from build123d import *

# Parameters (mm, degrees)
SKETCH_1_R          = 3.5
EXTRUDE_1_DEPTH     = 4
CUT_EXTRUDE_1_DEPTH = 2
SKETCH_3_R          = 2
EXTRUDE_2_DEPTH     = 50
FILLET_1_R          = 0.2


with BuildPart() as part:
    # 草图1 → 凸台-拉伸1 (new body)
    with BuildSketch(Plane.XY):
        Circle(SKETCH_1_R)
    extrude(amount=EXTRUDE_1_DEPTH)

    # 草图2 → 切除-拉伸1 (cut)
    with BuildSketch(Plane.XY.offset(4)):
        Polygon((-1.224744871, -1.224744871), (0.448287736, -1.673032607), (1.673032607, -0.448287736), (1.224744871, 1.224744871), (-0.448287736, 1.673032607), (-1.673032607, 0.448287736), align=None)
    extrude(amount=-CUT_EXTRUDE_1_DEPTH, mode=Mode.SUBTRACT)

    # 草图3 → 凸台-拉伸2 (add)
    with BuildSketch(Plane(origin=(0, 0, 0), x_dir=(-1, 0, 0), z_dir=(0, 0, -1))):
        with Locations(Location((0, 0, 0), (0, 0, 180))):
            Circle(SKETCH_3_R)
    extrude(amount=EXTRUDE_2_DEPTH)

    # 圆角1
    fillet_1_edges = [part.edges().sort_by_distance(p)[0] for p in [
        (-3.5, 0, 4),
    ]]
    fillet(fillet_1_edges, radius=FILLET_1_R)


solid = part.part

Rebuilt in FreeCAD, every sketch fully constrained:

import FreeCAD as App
import Part
import Sketcher
from FreeCAD import Vector
Q = App.Units.Quantity


def edges_at(feature, points):
    """Names of the edges that pass closest to the given points."""
    edges = feature.Shape.Edges
    near = lambda p: min(range(len(edges)), key=lambda i: edges[i].distToShape(Part.Vertex(*p))[0])
    return sorted({f"Edge{near(p) + 1}" for p in points})

doc = App.newDocument("Part")
body = doc.addObject("PartDesign::Body", "Body")

# Sketch on XY plane
sketch1 = doc.addObject("Sketcher::SketchObject", "Sketch")
body.addObject(sketch1)
sketch1.AttachmentSupport = (doc.XY_Plane, [""])
sketch1.MapMode = "FlatFace"
sketch1.addGeometry(Part.Circle(Vector(0, 0, 0), Vector(0, 0, 1), 3.5), False)
sketch1.addConstraint([
    Sketcher.Constraint("Coincident", 0, 3, -1, 1),
    Sketcher.Constraint("Diameter", 0, Q("7 mm")),
])
pad1 = doc.addObject("PartDesign::Pad", "Pad")
body.addObject(pad1)
pad1.Profile = sketch1
pad1.Length = 4

# Sketch on XY plane
sketch2 = doc.addObject("Sketcher::SketchObject", "Sketch001")
body.addObject(sketch2)
sketch2.AttachmentSupport = (doc.XY_Plane, [""])
sketch2.MapMode = "FlatFace"
sketch2.AttachmentOffset = App.Placement(Vector(0, 0, 4), App.Rotation())
sketch2.addGeometry([
    Part.LineSegment(Vector(-1.2, -1.2, 0), Vector(0.4, -1.7, 0)),  # 0
    Part.LineSegment(Vector(0.4, -1.7, 0), Vector(1.7, -0.4, 0)),  # 1
    Part.LineSegment(Vector(1.7, -0.4, 0), Vector(1.2, 1.2, 0)),  # 2
    Part.LineSegment(Vector(1.2, 1.2, 0), Vector(-0.4, 1.7, 0)),  # 3
    Part.LineSegment(Vector(-0.4, 1.7, 0), Vector(-1.7, 0.4, 0)),  # 4
    Part.LineSegment(Vector(-1.7, 0.4, 0), Vector(-1.2, -1.2, 0)),  # 5
], False)
sketch2.addConstraint([
    Sketcher.Constraint("Coincident", 0, 2, 1, 1),
    Sketcher.Constraint("Coincident", 1, 2, 2, 1),
    Sketcher.Constraint("Coincident", 2, 2, 3, 1),
    Sketcher.Constraint("Coincident", 3, 2, 4, 1),
    Sketcher.Constraint("Coincident", 4, 2, 5, 1),
    Sketcher.Constraint("Coincident", 5, 2, 0, 1),
    Sketcher.Constraint("Symmetric", 0, 2, 3, 2, -1, 1),
    Sketcher.Constraint("Symmetric", 1, 2, 4, 2, -1, 1),
    Sketcher.Constraint("Symmetric", 2, 2, 5, 2, -1, 1),
    Sketcher.Constraint("Equal", 0, 1),
    Sketcher.Constraint("Equal", 1, 2),
    Sketcher.Constraint("Angle", 0, Q("-15 deg")),
    Sketcher.Constraint("Angle", 1, Q("45 deg")),
    Sketcher.Constraint("Angle", 2, Q("105 deg")),
    Sketcher.Constraint("Distance", 0, Q("1.732051 mm")),
])
pocket1 = doc.addObject("PartDesign::Pocket", "Pocket")
body.addObject(pocket1)
pocket1.Profile = sketch2
pocket1.Length = 2

# Sketch on XY plane
sketch3 = doc.addObject("Sketcher::SketchObject", "Sketch002")
body.addObject(sketch3)
sketch3.AttachmentSupport = (doc.XY_Plane, [""])
sketch3.MapMode = "FlatFace"
sketch3.addGeometry(Part.Circle(Vector(0, 0, 0), Vector(0, 0, 1), 2), False)
sketch3.addConstraint([
    Sketcher.Constraint("Coincident", 0, 3, -1, 1),
    Sketcher.Constraint("Diameter", 0, Q("4 mm")),
])
pad2 = doc.addObject("PartDesign::Pad", "Pad001")
body.addObject(pad2)
pad2.Profile = sketch3
pad2.Length = 50
pad2.Reversed = True
doc.recompute()

fillet = doc.addObject("PartDesign::Fillet", "Fillet")
body.addObject(fillet)
fillet.Base = (pad2, edges_at(pad2, [(-3.5, 0, 4)]))
fillet.Radius = 0.2

doc.recompute()
